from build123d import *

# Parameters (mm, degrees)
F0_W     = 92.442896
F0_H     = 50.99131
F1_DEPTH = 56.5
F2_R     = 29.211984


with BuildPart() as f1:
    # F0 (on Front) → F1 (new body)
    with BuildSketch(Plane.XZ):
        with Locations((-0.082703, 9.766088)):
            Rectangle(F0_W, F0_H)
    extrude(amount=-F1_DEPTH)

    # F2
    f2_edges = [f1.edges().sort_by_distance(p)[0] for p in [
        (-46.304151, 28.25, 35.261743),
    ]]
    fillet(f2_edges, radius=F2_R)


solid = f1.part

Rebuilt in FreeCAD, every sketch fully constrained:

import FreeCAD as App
import Part
import Sketcher


def edges_at(feature, points):
    """Names of the edges that pass closest to the given points."""
    edges = feature.Shape.Edges
    near = lambda p: min(range(len(edges)), key=lambda i: edges[i].distToShape(Part.Vertex(*p))[0])
    return sorted({f"Edge{near(p) + 1}" for p in points})


def add_polygon(sketch, points):
    """Adds a closed chain of lines whose ends are joined by coincident constraints."""
    first, n = sketch.GeometryCount, len(points)
    for a, b in zip(points, points[1:] + points[:1]):
        sketch.addGeometry(Part.LineSegment(App.Vector(*a, 0), App.Vector(*b, 0)), False)
    for i in range(n):
        sketch.addConstraint(Sketcher.Constraint("Coincident", first + i, 2, first + (i + 1) % n, 1))

doc = App.newDocument("Part")
body = doc.addObject("PartDesign::Body", "Body")

sketch1 = body.newObject("Sketcher::SketchObject", "Sketch")
sketch1.AttachmentSupport = (doc.getObject("XZ_Plane"), [""])
sketch1.MapMode = "FlatFace"
add_polygon(sketch1, [(-46, 35), (-46, -16), (46, -16), (46, 35)])
sketch1.addConstraint([
    Sketcher.Constraint("Vertical", 0),
    Sketcher.Constraint("Horizontal", 1),
    Sketcher.Constraint("Vertical", 2),
    Sketcher.Constraint("Horizontal", 3),
    Sketcher.Constraint("DistanceY", 0, 2, 0, 1, 50.99131),
    Sketcher.Constraint("DistanceX", 1, 1, 1, 2, 92.442896),
    Sketcher.Constraint("DistanceX", 0, 2, -1, 1, 46.304151),
    Sketcher.Constraint("DistanceY", 0, 2, -1, 1, 15.729567),
])
pad1 = body.newObject("PartDesign::Pad", "Pad")
pad1.Profile = sketch1
pad1.Length = 56.5
pad1.Reversed = True
doc.recompute()

fillet = body.newObject("PartDesign::Fillet", "Fillet")
fillet.Base = (pad1, edges_at(pad1, [(-46.304, 28.25, 35.262)]))
fillet.Radius = 29.211984

doc.recompute()
